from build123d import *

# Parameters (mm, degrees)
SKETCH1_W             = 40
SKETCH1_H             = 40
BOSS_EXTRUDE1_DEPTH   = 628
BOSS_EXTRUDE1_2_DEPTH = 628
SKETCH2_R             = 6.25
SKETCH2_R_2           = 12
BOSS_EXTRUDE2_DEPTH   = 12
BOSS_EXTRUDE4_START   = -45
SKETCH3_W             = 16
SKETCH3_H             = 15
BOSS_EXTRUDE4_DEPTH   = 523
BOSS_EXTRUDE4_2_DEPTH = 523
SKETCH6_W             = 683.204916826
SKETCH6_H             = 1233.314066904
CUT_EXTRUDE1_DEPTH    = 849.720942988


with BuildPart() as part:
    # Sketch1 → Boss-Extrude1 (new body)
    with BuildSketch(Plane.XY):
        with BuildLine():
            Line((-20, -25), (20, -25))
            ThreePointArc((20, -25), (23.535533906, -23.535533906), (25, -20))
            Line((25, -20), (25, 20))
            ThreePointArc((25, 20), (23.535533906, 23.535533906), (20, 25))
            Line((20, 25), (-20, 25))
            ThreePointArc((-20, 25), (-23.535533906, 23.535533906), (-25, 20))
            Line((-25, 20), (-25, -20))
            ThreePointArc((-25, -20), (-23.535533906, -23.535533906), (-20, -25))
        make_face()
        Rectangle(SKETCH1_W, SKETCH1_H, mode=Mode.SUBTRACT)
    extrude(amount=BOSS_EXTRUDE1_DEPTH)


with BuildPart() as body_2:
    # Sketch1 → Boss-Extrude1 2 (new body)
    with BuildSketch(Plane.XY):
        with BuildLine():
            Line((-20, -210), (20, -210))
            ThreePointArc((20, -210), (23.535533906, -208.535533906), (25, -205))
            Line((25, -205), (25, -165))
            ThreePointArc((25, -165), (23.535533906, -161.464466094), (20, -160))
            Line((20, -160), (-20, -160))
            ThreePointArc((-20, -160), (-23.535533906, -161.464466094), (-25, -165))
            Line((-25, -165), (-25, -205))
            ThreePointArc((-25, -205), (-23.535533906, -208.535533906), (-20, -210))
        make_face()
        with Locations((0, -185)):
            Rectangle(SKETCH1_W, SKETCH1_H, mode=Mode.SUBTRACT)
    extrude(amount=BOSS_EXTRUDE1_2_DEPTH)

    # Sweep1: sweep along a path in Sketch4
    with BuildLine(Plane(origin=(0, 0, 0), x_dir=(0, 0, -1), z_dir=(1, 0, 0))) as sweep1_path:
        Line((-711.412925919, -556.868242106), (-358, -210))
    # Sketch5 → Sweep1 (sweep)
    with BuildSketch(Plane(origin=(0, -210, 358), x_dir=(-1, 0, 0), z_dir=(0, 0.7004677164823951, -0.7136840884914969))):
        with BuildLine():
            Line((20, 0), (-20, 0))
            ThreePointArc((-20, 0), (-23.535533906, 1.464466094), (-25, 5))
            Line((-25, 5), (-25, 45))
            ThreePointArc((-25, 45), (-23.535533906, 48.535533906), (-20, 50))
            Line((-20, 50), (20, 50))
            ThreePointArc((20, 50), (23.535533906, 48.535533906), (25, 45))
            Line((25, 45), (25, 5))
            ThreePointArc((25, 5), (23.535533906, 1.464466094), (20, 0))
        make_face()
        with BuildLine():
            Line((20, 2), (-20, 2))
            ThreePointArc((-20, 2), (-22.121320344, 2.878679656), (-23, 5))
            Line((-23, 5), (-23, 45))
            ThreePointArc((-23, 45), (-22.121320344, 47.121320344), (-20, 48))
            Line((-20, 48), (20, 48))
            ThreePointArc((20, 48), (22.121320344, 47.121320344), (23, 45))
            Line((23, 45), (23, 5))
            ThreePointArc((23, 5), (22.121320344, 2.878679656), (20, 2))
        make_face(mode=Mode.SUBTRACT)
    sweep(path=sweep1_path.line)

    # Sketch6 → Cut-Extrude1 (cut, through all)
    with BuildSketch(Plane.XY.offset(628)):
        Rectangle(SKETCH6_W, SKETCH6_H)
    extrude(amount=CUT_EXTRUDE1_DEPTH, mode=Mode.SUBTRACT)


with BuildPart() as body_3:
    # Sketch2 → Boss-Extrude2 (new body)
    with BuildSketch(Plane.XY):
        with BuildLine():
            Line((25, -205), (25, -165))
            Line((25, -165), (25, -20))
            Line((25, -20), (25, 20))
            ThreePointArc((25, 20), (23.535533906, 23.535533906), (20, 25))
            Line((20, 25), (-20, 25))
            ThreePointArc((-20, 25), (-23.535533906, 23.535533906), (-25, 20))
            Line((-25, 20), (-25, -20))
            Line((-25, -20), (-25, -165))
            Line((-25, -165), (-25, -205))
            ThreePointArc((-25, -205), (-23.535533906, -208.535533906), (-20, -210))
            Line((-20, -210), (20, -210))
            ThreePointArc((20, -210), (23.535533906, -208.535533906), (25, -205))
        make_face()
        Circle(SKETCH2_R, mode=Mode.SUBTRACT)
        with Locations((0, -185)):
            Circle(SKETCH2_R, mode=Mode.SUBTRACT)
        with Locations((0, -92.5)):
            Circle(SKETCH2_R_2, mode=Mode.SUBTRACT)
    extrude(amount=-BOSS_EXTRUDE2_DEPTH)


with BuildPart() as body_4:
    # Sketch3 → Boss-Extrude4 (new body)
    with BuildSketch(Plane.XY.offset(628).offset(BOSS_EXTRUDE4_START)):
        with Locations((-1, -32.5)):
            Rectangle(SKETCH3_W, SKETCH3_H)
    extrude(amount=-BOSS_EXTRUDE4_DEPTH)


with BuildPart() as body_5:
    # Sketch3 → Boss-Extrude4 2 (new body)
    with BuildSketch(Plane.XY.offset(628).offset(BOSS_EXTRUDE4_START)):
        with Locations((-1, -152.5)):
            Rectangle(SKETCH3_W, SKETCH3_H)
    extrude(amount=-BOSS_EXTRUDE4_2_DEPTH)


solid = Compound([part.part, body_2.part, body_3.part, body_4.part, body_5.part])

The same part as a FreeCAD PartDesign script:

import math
import FreeCAD as App
import Part
import Sketcher
from FreeCAD import Vector


def add_polygon(sketch, points):
    """Adds a closed chain of lines whose ends are joined by coincident constraints."""
    first, n = sketch.GeometryCount, len(points)
    for a, b in zip(points, points[1:] + points[:1]):
        sketch.addGeometry(Part.LineSegment(App.Vector(*a, 0), App.Vector(*b, 0)), False)
    for i in range(n):
        sketch.addConstraint(Sketcher.Constraint("Coincident", first + i, 2, first + (i + 1) % n, 1))

doc = App.newDocument("Part")
body = doc.addObject("PartDesign::Body", "Body")

# Sketch on XY plane
sketch1 = body.newObject("Sketcher::SketchObject", "Sketch")
sketch1.AttachmentSupport = (doc.getObject("XY_Plane"), [""])
sketch1.MapMode = "FlatFace"
sketch1.addGeometry(Part.LineSegment(Vector(-20, -25, 0), Vector(20, -25, 0)), False)  # 0
sketch1.addGeometry(Part.ArcOfCircle(Part.Circle(Vector(20, -20, 0), Vector(0, 0, 1), 5), math.radians(-90), math.radians(0)), False)  # 1
sketch1.addGeometry(Part.LineSegment(Vector(25, -20, 0), Vector(25, 20, 0)), False)  # 2
sketch1.addGeometry(Part.ArcOfCircle(Part.Circle(Vector(20, 20, 0), Vector(0, 0, 1), 5), math.radians(0), math.radians(90)), False)  # 3
sketch1.addGeometry(Part.LineSegment(Vector(20, 25, 0), Vector(-20, 25, 0)), False)  # 4
sketch1.addGeometry(Part.ArcOfCircle(Part.Circle(Vector(-20, 20, 0), Vector(0, 0, 1), 5), math.radians(90), math.radians(180)), False)  # 5
sketch1.addGeometry(Part.LineSegment(Vector(-25, 20, 0), Vector(-25, -20, 0)), False)  # 6
sketch1.addGeometry(Part.ArcOfCircle(Part.Circle(Vector(-20, -20, 0), Vector(0, 0, 1), 5), math.radians(180), math.radians(270)), False)  # 7
add_polygon(sketch1, [(20, -20), (-20, -20), (-20, 20), (20, 20)])  # lines 8-11
sketch1.addConstraint([
    Sketcher.Constraint("Tangent", 0, 2, 1, 1),
    Sketcher.Constraint("Tangent", 1, 2, 2, 1),
    Sketcher.Constraint("Tangent", 2, 2, 3, 1),
    Sketcher.Constraint("Tangent", 3, 2, 4, 1),
    Sketcher.Constraint("Tangent", 4, 2, 5, 1),
    Sketcher.Constraint("Tangent", 5, 2, 6, 1),
    Sketcher.Constraint("Tangent", 6, 2, 7, 1),
    Sketcher.Constraint("Tangent", 7, 2, 0, 1),
    Sketcher.Constraint("Horizontal", 0),
    Sketcher.Constraint("Vertical", 2),
    Sketcher.Constraint("Horizontal", 4),
    Sketcher.Constraint("Vertical", 6),
    Sketcher.Constraint("Horizontal", 8),
    Sketcher.Constraint("Vertical", 9),
    Sketcher.Constraint("Horizontal", 10),
    Sketcher.Constraint("Vertical", 11),
    Sketcher.Constraint("Coincident", 8, 2, 7, 3),
    Sketcher.Constraint("Coincident", 9, 2, 5, 3),
    Sketcher.Constraint("Coincident", 10, 2, 3, 3),
    Sketcher.Constraint("Equal", 1, 3),
    Sketcher.Constraint("Symmetric", 1, 3, 5, 3, -1, 1),
    Sketcher.Constraint("Equal", 10, 2),
    Sketcher.Constraint("Radius", 1, 5.0),
    Sketcher.Constraint("DistanceX", 0, 1, 0, 2, 40.0),
])
pad1 = body.newObject("PartDesign::Pad", "Pad")
pad1.Profile = sketch1
pad1.Length = 628
body2 = doc.addObject("PartDesign::Body", "Body001")

# Sketch on XY plane
sketch2 = body2.newObject("Sketcher::SketchObject", "Sketch001")
sketch2.AttachmentSupport = (doc.getObject("XY_Plane001"), [""])
sketch2.MapMode = "FlatFace"
sketch2.addGeometry(Part.LineSegment(Vector(-20, -210, 0), Vector(20, -210, 0)), False)  # 0
sketch2.addGeometry(Part.ArcOfCircle(Part.Circle(Vector(20, -205, 0), Vector(0, 0, 1), 5), math.radians(-90), math.radians(0)), False)  # 1
sketch2.addGeometry(Part.LineSegment(Vector(25, -205, 0), Vector(25, -165, 0)), False)  # 2
sketch2.addGeometry(Part.ArcOfCircle(Part.Circle(Vector(20, -165, 0), Vector(0, 0, 1), 5), math.radians(0), math.radians(90)), False)  # 3
sketch2.addGeometry(Part.LineSegment(Vector(20, -160, 0), Vector(-20, -160, 0)), False)  # 4
sketch2.addGeometry(Part.ArcOfCircle(Part.Circle(Vector(-20, -165, 0), Vector(0, 0, 1), 5), math.radians(90), math.radians(180)), False)  # 5
sketch2.addGeometry(Part.LineSegment(Vector(-25, -165, 0), Vector(-25, -205, 0)), False)  # 6
sketch2.addGeometry(Part.ArcOfCircle(Part.Circle(Vector(-20, -205, 0), Vector(0, 0, 1), 5), math.radians(180), math.radians(270)), False)  # 7
add_polygon(sketch2, [(20, -205), (-20, -205), (-20, -165), (20, -165)])  # lines 8-11
sketch2.addConstraint([
    Sketcher.Constraint("Tangent", 0, 2, 1, 1),
    Sketcher.Constraint("Tangent", 1, 2, 2, 1),
    Sketcher.Constraint("Tangent", 2, 2, 3, 1),
    Sketcher.Constraint("Tangent", 3, 2, 4, 1),
    Sketcher.Constraint("Tangent", 4, 2, 5, 1),
    Sketcher.Constraint("Tangent", 5, 2, 6, 1),
    Sketcher.Constraint("Tangent", 6, 2, 7, 1),
    Sketcher.Constraint("Tangent", 7, 2, 0, 1),
    Sketcher.Constraint("Horizontal", 0),
    Sketcher.Constraint("Vertical", 2),
    Sketcher.Constraint("Horizontal", 4),
    Sketcher.Constraint("Vertical", 6),
    Sketcher.Constraint("Horizontal", 8),
    Sketcher.Constraint("Vertical", 9),
    Sketcher.Constraint("Horizontal", 10),
    Sketcher.Constraint("Vertical", 11),
    Sketcher.Constraint("Coincident", 8, 2, 7, 3),
    Sketcher.Constraint("Coincident", 9, 2, 5, 3),
    Sketcher.Constraint("Coincident", 10, 2, 3, 3),
    Sketcher.Constraint("Equal", 1, 3),
    Sketcher.Constraint("Equal", 10, 2),
    Sketcher.Constraint("Radius", 1, 5.0),
    Sketcher.Constraint("DistanceX", 0, 1, 0, 2, 40.0),
    Sketcher.Constraint("DistanceX", -1, 1, 1, 3, 20.0),
    Sketcher.Constraint("DistanceY", 1, 3, -1, 1, 205.0),
])
pad2 = body2.newObject("PartDesign::Pad", "Pad001")
pad2.Profile = sketch2
pad2.Length = 628

# Sketch on an angled plane
sketch3 = body2.newObject("Sketcher::SketchObject", "Sketch002")
sketch3.Placement = App.Placement(Vector(0, -210, 358), App.Rotation(Vector(-1, 0, 0), Vector(0, 0.713684088, 0.700467716), Vector(0, 0.700467716, -0.713684088), "ZXY"))
sketch3.addGeometry([
    Part.LineSegment(Vector(-20, 0, 0), Vector(20, 0, 0)),  # 0
    Part.ArcOfCircle(Part.Circle(Vector(20, 5, 0), Vector(0, 0, 1), 5), math.radians(-90), math.radians(0)),  # 1
    Part.LineSegment(Vector(25, 5, 0), Vector(25, 45, 0)),  # 2
    Part.ArcOfCircle(Part.Circle(Vector(20, 45, 0), Vector(0, 0, 1), 5), math.radians(0), math.radians(90)),  # 3
    Part.LineSegment(Vector(20, 50, 0), Vector(-20, 50, 0)),  # 4
    Part.ArcOfCircle(Part.Circle(Vector(-20, 45, 0), Vector(0, 0, 1), 5), math.radians(90), math.radians(180)),  # 5
    Part.LineSegment(Vector(-25, 45, 0), Vector(-25, 5, 0)),  # 6
    Part.ArcOfCircle(Part.Circle(Vector(-20, 5, 0), Vector(0, 0, 1), 5), math.radians(180), math.radians(270)),  # 7
    Part.LineSegment(Vector(20, 2, 0), Vector(-20, 2, 0)),  # 8
    Part.ArcOfCircle(Part.Circle(Vector(-20, 5, 0), Vector(0, 0, 1), 3), math.radians(180), math.radians(270)),  # 9
    Part.LineSegment(Vector(-23, 5, 0), Vector(-23, 45, 0)),  # 10
    Part.ArcOfCircle(Part.Circle(Vector(-20, 45, 0), Vector(0, 0, 1), 3), math.radians(90), math.radians(180)),  # 11
    Part.LineSegment(Vector(-20, 48, 0), Vector(20, 48, 0)),  # 12
    Part.ArcOfCircle(Part.Circle(Vector(20, 45, 0), Vector(0, 0, 1), 3), math.radians(0), math.radians(90)),  # 13
    Part.LineSegment(Vector(23, 45, 0), Vector(23, 5, 0)),  # 14
    Part.ArcOfCircle(Part.Circle(Vector(20, 5, 0), Vector(0, 0, 1), 3), math.radians(-90), math.radians(0)),  # 15
], False)
sketch3.addConstraint([
    Sketcher.Constraint("Tangent", 0, 2, 1, 1),
    Sketcher.Constraint("Tangent", 1, 2, 2, 1),
    Sketcher.Constraint("Tangent", 2, 2, 3, 1),
    Sketcher.Constraint("Tangent", 3, 2, 4, 1),
    Sketcher.Constraint("Tangent", 4, 2, 5, 1),
    Sketcher.Constraint("Tangent", 5, 2, 6, 1),
    Sketcher.Constraint("Tangent", 6, 2, 7, 1),
    Sketcher.Constraint("Tangent", 7, 2, 0, 1),
    Sketcher.Constraint("Tangent", 8, 2, 9, 2),
    Sketcher.Constraint("Tangent", 9, 1, 10, 1),
    Sketcher.Constraint("Tangent", 10, 2, 11, 2),
    Sketcher.Constraint("Tangent", 11, 1, 12, 1),
    Sketcher.Constraint("Tangent", 12, 2, 13, 2),
    Sketcher.Constraint("Tangent", 13, 1, 14, 1),
    Sketcher.Constraint("Tangent", 14, 2, 15, 2),
    Sketcher.Constraint("Tangent", 15, 1, 8, 1),
    Sketcher.Constraint("Horizontal", 0),
    Sketcher.Constraint("Vertical", 2),
    Sketcher.Constraint("Horizontal", 4),
    Sketcher.Constraint("Vertical", 6),
    Sketcher.Constraint("Horizontal", 8),
    Sketcher.Constraint("Vertical", 10),
    Sketcher.Constraint("Horizontal", 12),
    Sketcher.Constraint("Vertical", 14),
    Sketcher.Constraint("Coincident", 9, 3, 7, 3),
    Sketcher.Constraint("Coincident", 11, 3, 5, 3),
    Sketcher.Constraint("Coincident", 13, 3, 3, 3),
    Sketcher.Constraint("Equal", 1, 3),
    Sketcher.Constraint("Equal", 3, 5),
    Sketcher.Constraint("Equal", 5, 7),
    Sketcher.Constraint("Equal", 13, 15),
    Sketcher.Constraint("Symmetric", 0, 2, 7, 2, -1, 1),
    Sketcher.Constraint("Equal", 12, 2),
    Sketcher.Constraint("Radius", 1, 5.0),
    Sketcher.Constraint("Radius", 9, 3.0),
    Sketcher.Constraint("DistanceX", 0, 1, 0, 2, 40.0),
])

# Sketch on an angled plane
sketch4 = body2.newObject("Sketcher::SketchObject", "Sketch003")
sketch4.Placement = App.Placement(Vector(0, 72.006288, 70.672838), App.Rotation(Vector(0, -0.700467716, 0.713684088), Vector(0.999999999, 0, 0), Vector(0, 0.713684088, 0.700467716), "ZXY"))
sketch4.addGeometry(Part.LineSegment(Vector(898, 0, 0), Vector(403, 0, 0)), False)
sketch4.addConstraint([
    Sketcher.Constraint("Horizontal", 0),
    Sketcher.Constraint("PointOnObject", 0, 1, -1),
    Sketcher.Constraint("DistanceX", 0, 2, 0, 1, 495.195187),
    Sketcher.Constraint("DistanceX", -1, 1, 0, 1, 897.79231),
])
doc.recompute()

additivepipe = body2.newObject("PartDesign::AdditivePipe", "AdditivePipe")
additivepipe.Profile = sketch3
additivepipe.Spine = (sketch4, ["Edge1"])

# Sketch on XY plane
sketch5 = body2.newObject("Sketcher::SketchObject", "Sketch004")
sketch5.AttachmentSupport = (doc.getObject("XY_Plane001"), [""])
sketch5.MapMode = "FlatFace"
sketch5.AttachmentOffset = App.Placement(Vector(0, 0, 628), App.Rotation())
add_polygon(sketch5, [(-342, 617), (-342, -617), (342, -617), (342, 617)])  # lines 0-3
sketch5.addConstraint([
    Sketcher.Constraint("Vertical", 0),
    Sketcher.Constraint("Horizontal", 1),
    Sketcher.Constraint("Vertical", 2),
    Sketcher.Constraint("Horizontal", 3),
    Sketcher.Constraint("Symmetric", 0, 2, 2, 2, -1, 1),
    Sketcher.Constraint("DistanceX", 1, 1, 1, 2, 683.204917),
    Sketcher.Constraint("DistanceY", 0, 2, 0, 1, 1233.314067),
])
pocket1 = body2.newObject("PartDesign::Pocket", "Pocket")
pocket1.Profile = sketch5
pocket1.Type = "ThroughAll"
pocket1.Reversed = True
body3 = doc.addObject("PartDesign::Body", "Body002")

# Sketch on XY plane
sketch6 = body3.newObject("Sketcher::SketchObject", "Sketch005")
sketch6.AttachmentSupport = (doc.getObject("XY_Plane002"), [""])
sketch6.MapMode = "FlatFace"
sketch6.addGeometry([
    Part.LineSegment(Vector(25, -205, 0), Vector(25, 20, 0)),  # 0
    Part.ArcOfCircle(Part.Circle(Vector(20, 20, 0), Vector(0, 0, 1), 5), math.radians(0), math.radians(90)),  # 1
    Part.LineSegment(Vector(20, 25, 0), Vector(-20, 25, 0)),  # 2
    Part.ArcOfCircle(Part.Circle(Vector(-20, 20, 0), Vector(0, 0, 1), 5), math.radians(90), math.radians(180)),  # 3
    Part.LineSegment(Vector(-25, 20, 0), Vector(-25, -205, 0)),  # 4
    Part.ArcOfCircle(Part.Circle(Vector(-20, -205, 0), Vector(0, 0, 1), 5), math.radians(180), math.radians(270)),  # 5
    Part.LineSegment(Vector(-20, -210, 0), Vector(20, -210, 0)),  # 6
    Part.ArcOfCircle(Part.Circle(Vector(20, -205, 0), Vector(0, 0, 1), 5), math.radians(-90), math.radians(0)),  # 7
    Part.Circle(Vector(0, -185, 0), Vector(0, 0, 1), 6),  # 8
    Part.Circle(Vector(0, -92, 0), Vector(0, 0, 1), 12),  # 9
    Part.Circle(Vector(0, 0, 0), Vector(0, 0, 1), 6),  # 10
], False)
sketch6.addConstraint([
    Sketcher.Constraint("Tangent", 0, 2, 1, 1),
    Sketcher.Constraint("Tangent", 1, 2, 2, 1),
    Sketcher.Constraint("Tangent", 2, 2, 3, 1),
    Sketcher.Constraint("Tangent", 3, 2, 4, 1),
    Sketcher.Constraint("Tangent", 4, 2, 5, 1),
    Sketcher.Constraint("Tangent", 5, 2, 6, 1),
    Sketcher.Constraint("Tangent", 6, 2, 7, 1),
    Sketcher.Constraint("Tangent", 7, 2, 0, 1),
    Sketcher.Constraint("Vertical", 0),
    Sketcher.Constraint("Horizontal", 2),
    Sketcher.Constraint("Vertical", 4),
    Sketcher.Constraint("Horizontal", 6),
    Sketcher.Constraint("Coincident", 10, 3, -1, 1),
    Sketcher.Constraint("Equal", 1, 3),
    Sketcher.Constraint("Equal", 3, 5),
    Sketcher.Constraint("Equal", 5, 7),
    Sketcher.Constraint("Equal", 8, 10),
    Sketcher.Constraint("PointOnObject", 8, 3, -2),
    Sketcher.Constraint("PointOnObject", 9, 3, -2),
    Sketcher.Constraint("Diameter", 9, 24.0),
    Sketcher.Constraint("Radius", 1, 5.0),
    Sketcher.Constraint("Diameter", 8, 12.5),
    Sketcher.Constraint("DistanceX", 2, 2, 2, 1, 40.0),
    Sketcher.Constraint("DistanceY", 0, 1, 0, 2, 225.0),
    Sketcher.Constraint("DistanceX", -1, 1, 1, 3, 20.0),
    Sketcher.Constraint("DistanceY", -1, 1, 1, 3, 20.0),
    Sketcher.Constraint("DistanceY", 8, 3, -1, 1, 185.0),
    Sketcher.Constraint("DistanceY", 9, 3, -1, 1, 92.5),
])
pad3 = body3.newObject("PartDesign::Pad", "Pad002")
pad3.Profile = sketch6
pad3.Length = 12
pad3.Reversed = True
body4 = doc.addObject("PartDesign::Body", "Body003")

# Sketch on XY plane
sketch7 = body4.newObject("Sketcher::SketchObject", "Sketch006")
sketch7.AttachmentSupport = (doc.getObject("XY_Plane003"), [""])
sketch7.MapMode = "FlatFace"
sketch7.AttachmentOffset = App.Placement(Vector(0, 0, 583), App.Rotation())
add_polygon(sketch7, [(-9, -25), (-9, -40), (7, -40), (7, -25)])  # lines 0-3
sketch7.addConstraint([
    Sketcher.Constraint("Vertical", 0),
    Sketcher.Constraint("Horizontal", 1),
    Sketcher.Constraint("Vertical", 2),
    Sketcher.Constraint("Horizontal", 3),
    Sketcher.Constraint("DistanceX", 1, 1, 1, 2, 16.0),
    Sketcher.Constraint("DistanceY", 0, 2, 0, 1, 15.0),
    Sketcher.Constraint("DistanceX", 0, 2, -1, 1, 9.0),
    Sketcher.Constraint("DistanceY", 0, 2, -1, 1, 40.0),
])
pad4 = body4.newObject("PartDesign::Pad", "Pad003")
pad4.Profile = sketch7
pad4.Length = 523
pad4.Reversed = True
body5 = doc.addObject("PartDesign::Body", "Body004")

# Sketch on XY plane
sketch8 = body5.newObject("Sketcher::SketchObject", "Sketch007")
sketch8.AttachmentSupport = (doc.getObject("XY_Plane004"), [""])
sketch8.MapMode = "FlatFace"
sketch8.AttachmentOffset = App.Placement(Vector(0, 0, 583), App.Rotation())
add_polygon(sketch8, [(-9, -145), (-9, -160), (7, -160), (7, -145)])  # lines 0-3
sketch8.addConstraint([
    Sketcher.Constraint("Vertical", 0),
    Sketcher.Constraint("Horizontal", 1),
    Sketcher.Constraint("Vertical", 2),
    Sketcher.Constraint("Horizontal", 3),
    Sketcher.Constraint("DistanceX", 1, 1, 1, 2, 16.0),
    Sketcher.Constraint("DistanceY", 0, 2, 0, 1, 15.0),
    Sketcher.Constraint("DistanceX", 0, 2, -1, 1, 9.0),
    Sketcher.Constraint("DistanceY", 0, 2, -1, 1, 160.0),
])
pad5 = body5.newObject("PartDesign::Pad", "Pad004")
pad5.Profile = sketch8
pad5.Length = 523
pad5.Reversed = True

doc.recompute()
